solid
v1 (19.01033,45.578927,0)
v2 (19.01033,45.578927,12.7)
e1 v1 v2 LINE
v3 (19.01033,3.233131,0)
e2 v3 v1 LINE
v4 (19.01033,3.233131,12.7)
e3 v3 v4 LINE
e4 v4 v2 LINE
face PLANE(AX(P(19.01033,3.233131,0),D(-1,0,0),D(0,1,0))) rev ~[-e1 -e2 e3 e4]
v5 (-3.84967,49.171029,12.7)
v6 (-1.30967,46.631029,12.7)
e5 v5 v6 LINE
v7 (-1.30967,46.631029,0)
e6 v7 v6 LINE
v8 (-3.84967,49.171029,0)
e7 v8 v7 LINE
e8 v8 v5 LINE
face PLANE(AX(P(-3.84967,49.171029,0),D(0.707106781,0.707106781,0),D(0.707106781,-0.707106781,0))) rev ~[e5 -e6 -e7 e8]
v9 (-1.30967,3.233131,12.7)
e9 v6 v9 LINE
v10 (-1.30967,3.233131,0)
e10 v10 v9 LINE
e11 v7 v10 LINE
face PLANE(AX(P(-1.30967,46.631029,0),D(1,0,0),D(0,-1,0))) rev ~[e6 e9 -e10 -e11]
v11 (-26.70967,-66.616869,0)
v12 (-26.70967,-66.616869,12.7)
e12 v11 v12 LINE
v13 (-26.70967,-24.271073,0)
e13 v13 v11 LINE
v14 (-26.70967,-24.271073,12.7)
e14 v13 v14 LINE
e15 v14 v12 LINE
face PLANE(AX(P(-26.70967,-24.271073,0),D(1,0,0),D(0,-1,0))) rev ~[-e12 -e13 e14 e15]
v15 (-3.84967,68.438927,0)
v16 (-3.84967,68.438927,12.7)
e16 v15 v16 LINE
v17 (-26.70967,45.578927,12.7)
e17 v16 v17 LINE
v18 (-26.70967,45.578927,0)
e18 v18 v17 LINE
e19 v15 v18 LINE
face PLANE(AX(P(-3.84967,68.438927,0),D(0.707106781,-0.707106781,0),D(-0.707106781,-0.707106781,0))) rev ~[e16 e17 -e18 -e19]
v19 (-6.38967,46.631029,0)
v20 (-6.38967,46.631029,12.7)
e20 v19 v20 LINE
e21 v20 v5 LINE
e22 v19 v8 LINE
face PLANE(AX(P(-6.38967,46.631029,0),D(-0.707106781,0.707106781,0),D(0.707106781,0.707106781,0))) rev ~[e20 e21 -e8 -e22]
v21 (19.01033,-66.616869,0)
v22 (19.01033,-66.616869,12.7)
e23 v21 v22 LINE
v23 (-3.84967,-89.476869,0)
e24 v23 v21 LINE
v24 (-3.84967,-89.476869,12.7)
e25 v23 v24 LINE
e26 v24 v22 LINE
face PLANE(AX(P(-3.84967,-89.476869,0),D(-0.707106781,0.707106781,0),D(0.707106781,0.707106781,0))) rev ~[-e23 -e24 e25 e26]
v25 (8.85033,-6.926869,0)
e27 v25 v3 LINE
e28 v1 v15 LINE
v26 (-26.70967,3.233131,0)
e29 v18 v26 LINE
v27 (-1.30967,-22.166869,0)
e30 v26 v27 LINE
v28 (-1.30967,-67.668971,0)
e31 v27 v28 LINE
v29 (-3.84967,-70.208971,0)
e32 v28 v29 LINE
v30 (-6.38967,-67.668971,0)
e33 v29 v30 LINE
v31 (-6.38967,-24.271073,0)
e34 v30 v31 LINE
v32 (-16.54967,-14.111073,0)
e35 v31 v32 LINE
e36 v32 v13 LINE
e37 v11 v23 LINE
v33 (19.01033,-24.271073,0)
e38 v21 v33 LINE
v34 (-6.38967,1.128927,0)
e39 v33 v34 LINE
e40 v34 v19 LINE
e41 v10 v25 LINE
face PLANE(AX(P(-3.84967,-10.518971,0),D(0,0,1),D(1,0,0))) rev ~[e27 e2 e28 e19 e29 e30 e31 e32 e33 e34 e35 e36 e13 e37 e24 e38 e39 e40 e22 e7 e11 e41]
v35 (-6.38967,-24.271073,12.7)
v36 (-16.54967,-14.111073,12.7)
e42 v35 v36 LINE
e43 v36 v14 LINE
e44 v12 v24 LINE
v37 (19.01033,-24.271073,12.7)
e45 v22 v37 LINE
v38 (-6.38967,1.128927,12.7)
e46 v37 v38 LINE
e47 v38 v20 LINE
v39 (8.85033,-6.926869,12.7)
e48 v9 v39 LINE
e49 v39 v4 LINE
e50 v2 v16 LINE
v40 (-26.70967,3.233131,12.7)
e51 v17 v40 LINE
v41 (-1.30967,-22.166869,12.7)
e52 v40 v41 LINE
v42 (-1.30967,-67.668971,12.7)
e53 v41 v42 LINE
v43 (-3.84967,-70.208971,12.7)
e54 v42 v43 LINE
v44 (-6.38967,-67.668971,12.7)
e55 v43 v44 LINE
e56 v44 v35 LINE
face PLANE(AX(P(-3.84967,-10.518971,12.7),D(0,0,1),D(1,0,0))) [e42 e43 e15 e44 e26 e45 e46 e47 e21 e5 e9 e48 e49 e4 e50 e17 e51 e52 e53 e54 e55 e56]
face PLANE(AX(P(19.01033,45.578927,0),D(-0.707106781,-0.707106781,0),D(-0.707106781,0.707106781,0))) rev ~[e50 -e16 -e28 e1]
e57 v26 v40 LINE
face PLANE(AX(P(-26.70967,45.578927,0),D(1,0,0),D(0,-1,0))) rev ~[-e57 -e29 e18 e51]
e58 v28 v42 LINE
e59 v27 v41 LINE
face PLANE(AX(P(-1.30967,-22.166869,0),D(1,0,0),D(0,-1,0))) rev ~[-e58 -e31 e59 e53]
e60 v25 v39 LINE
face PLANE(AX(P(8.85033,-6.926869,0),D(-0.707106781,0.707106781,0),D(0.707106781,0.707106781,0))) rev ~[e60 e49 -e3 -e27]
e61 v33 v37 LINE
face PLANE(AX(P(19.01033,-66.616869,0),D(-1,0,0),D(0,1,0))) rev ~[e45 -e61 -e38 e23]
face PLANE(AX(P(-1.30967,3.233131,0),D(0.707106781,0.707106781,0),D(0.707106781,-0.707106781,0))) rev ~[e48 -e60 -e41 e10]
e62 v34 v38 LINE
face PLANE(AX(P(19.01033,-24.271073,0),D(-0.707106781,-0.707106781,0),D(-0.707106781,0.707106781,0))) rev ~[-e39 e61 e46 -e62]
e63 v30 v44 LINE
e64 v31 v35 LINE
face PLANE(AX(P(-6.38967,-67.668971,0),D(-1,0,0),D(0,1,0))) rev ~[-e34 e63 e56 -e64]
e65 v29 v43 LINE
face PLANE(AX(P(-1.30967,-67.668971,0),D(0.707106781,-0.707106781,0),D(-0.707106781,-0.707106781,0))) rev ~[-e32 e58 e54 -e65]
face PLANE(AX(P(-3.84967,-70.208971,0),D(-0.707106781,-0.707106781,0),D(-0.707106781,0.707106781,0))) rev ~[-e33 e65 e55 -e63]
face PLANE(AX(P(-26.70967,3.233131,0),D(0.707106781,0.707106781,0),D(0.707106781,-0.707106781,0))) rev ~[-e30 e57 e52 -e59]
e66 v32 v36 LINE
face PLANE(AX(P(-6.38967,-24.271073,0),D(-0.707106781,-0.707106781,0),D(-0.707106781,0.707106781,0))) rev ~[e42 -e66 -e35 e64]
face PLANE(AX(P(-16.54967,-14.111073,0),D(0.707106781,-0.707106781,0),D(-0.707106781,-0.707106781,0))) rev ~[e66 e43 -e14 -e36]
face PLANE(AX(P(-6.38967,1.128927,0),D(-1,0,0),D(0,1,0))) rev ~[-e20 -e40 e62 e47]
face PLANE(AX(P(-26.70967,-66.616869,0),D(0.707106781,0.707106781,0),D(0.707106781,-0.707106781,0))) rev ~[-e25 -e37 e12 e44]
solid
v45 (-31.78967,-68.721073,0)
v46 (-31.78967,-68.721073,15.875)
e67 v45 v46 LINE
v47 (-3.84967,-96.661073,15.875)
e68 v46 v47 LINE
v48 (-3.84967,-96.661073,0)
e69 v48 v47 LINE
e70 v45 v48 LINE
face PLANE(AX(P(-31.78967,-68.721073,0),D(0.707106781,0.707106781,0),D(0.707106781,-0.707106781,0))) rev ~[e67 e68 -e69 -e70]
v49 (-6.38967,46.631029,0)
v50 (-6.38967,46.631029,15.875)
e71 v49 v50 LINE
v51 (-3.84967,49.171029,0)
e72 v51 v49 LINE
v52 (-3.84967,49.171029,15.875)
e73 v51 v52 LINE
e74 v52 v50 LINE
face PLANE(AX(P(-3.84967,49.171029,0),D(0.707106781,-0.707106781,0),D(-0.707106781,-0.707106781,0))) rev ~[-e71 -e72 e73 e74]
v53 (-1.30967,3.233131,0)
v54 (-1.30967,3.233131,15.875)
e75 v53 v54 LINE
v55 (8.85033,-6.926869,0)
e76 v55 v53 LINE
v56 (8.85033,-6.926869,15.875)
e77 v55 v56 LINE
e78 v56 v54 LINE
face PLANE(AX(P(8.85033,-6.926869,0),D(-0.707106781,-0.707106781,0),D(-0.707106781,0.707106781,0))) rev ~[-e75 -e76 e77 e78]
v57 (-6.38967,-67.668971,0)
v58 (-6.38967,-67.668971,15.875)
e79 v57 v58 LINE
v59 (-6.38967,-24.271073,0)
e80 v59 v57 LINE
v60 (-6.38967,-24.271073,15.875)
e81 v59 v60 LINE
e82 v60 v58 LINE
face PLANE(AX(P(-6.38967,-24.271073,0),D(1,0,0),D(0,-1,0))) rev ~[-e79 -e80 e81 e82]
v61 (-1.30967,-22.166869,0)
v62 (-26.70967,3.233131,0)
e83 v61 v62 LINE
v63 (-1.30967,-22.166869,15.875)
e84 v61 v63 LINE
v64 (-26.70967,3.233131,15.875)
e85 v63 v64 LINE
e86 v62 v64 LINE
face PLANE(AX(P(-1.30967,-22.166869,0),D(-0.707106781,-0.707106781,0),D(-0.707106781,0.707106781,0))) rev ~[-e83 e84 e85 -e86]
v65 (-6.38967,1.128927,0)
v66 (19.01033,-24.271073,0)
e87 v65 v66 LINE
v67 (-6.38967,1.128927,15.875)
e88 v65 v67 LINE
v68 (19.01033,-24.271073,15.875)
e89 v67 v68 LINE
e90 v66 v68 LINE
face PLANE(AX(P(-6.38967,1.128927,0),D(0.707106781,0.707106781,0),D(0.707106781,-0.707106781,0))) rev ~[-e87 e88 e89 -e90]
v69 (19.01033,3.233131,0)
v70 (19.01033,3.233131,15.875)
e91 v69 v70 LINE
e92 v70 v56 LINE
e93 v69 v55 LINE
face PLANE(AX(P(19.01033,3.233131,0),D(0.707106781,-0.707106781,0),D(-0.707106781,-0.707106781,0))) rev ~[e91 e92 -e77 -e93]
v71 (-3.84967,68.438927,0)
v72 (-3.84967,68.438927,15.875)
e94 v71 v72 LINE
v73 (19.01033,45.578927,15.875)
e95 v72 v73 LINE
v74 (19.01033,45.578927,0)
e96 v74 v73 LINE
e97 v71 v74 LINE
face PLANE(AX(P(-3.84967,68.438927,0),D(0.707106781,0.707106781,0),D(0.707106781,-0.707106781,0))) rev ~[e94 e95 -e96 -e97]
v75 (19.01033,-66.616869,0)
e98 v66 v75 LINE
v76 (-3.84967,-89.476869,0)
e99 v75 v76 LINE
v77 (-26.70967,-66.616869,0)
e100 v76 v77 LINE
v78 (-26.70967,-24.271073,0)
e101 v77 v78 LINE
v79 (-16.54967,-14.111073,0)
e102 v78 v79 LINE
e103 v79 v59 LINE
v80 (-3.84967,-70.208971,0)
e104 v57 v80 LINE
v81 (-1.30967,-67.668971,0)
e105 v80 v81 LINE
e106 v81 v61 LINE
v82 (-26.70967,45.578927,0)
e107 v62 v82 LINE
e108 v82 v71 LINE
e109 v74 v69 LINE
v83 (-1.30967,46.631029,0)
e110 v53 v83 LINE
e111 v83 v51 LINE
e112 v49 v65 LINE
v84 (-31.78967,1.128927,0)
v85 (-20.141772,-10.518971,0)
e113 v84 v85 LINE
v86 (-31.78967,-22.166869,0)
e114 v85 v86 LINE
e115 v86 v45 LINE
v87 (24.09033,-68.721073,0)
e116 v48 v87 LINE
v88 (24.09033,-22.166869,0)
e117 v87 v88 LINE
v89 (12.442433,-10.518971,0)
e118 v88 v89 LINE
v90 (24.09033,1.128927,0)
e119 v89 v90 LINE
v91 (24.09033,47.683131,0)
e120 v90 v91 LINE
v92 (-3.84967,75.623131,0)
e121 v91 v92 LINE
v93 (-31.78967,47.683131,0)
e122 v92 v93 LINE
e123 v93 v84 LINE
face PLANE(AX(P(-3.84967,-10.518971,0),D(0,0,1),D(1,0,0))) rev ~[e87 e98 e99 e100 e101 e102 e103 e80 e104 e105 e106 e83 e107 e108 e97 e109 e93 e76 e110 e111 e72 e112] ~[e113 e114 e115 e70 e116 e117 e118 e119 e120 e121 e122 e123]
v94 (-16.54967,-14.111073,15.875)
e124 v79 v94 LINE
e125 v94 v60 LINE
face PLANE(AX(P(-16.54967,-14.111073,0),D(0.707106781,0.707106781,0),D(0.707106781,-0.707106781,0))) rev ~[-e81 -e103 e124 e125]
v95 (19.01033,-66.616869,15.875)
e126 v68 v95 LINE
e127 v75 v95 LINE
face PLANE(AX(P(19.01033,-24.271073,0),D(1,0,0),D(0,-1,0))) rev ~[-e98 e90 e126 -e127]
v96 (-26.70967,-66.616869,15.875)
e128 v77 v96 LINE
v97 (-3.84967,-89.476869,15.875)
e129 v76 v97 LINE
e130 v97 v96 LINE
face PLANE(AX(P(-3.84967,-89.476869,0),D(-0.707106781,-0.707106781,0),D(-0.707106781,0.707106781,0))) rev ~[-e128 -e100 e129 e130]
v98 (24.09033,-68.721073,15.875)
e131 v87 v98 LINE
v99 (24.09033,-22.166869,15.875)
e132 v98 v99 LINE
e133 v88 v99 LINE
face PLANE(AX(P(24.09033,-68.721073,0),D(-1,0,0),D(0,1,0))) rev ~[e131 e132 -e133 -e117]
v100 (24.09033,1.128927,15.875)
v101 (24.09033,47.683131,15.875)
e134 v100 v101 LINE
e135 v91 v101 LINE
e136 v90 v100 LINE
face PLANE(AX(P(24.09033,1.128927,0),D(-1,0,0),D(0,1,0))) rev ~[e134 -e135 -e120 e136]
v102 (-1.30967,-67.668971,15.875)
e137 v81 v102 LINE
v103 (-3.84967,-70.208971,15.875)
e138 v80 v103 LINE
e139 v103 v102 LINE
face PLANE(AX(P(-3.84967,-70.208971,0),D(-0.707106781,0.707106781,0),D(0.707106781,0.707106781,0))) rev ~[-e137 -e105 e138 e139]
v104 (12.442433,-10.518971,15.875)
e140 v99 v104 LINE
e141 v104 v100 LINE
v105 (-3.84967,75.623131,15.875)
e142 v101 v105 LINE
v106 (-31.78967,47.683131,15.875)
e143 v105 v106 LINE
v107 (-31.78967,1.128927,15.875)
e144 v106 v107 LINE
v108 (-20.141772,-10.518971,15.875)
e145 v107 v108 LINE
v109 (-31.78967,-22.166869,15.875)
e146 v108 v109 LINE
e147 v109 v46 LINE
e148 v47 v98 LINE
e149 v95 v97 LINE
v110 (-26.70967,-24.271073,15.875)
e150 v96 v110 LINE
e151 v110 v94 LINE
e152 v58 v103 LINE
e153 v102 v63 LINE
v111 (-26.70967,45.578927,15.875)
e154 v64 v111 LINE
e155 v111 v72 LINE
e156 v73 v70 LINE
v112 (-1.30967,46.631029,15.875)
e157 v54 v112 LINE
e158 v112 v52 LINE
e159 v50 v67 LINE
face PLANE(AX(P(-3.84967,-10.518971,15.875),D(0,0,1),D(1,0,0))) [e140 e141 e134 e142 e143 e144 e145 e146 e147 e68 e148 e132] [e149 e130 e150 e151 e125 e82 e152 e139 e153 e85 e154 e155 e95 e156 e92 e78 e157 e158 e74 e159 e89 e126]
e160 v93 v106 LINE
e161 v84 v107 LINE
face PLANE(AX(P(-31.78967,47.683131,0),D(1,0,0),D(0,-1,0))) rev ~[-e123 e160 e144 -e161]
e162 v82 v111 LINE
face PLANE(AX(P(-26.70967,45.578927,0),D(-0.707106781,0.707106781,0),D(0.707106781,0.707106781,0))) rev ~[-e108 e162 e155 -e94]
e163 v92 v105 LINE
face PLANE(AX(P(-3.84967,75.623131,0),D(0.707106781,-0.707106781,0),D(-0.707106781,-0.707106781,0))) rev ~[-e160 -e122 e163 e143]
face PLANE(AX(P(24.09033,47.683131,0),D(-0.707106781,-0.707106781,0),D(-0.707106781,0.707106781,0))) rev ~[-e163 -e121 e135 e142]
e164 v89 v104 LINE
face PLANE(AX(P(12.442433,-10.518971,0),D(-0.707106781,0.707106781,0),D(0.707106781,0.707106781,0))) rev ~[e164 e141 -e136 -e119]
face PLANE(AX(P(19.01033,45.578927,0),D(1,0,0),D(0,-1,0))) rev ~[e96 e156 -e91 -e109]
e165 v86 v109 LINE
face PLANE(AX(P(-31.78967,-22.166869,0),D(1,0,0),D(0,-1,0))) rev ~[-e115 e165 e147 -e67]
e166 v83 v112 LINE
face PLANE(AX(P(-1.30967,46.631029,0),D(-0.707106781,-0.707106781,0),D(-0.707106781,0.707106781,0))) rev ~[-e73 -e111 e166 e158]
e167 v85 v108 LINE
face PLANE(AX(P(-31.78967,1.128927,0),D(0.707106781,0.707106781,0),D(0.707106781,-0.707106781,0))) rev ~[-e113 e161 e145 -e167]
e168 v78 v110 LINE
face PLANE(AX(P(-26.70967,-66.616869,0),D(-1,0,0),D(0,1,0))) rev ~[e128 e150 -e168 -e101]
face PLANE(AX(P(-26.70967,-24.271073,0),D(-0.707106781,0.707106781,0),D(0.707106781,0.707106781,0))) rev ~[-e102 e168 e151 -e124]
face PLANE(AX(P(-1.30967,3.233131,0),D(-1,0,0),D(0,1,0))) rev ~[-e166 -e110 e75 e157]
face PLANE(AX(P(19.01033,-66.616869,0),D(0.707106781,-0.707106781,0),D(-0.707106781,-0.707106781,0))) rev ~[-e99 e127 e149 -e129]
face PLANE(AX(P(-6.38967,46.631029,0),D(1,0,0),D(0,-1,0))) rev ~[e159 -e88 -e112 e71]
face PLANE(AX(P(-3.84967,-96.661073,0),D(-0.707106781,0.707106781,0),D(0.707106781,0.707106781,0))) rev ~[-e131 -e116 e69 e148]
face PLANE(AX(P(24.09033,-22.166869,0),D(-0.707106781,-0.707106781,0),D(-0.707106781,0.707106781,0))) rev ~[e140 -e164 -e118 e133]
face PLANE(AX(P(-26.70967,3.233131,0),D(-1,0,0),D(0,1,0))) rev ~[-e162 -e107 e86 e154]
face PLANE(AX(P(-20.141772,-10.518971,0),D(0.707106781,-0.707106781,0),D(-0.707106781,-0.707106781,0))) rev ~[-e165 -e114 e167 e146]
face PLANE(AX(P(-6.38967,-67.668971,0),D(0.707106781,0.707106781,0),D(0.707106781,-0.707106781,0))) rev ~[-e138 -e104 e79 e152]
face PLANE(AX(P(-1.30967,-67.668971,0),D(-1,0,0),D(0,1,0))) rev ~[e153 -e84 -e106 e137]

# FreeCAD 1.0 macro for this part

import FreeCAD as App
import Part
import Sketcher
from FreeCAD import Vector
Q = App.Units.Quantity


def add_polygon(sketch, points):
    """Adds a closed chain of lines whose ends are joined by coincident constraints."""
    first, n = sketch.GeometryCount, len(points)
    for a, b in zip(points, points[1:] + points[:1]):
        sketch.addGeometry(Part.LineSegment(App.Vector(*a, 0), App.Vector(*b, 0)), False)
    for i in range(n):
        sketch.addConstraint(Sketcher.Constraint("Coincident", first + i, 2, first + (i + 1) % n, 1))

doc = App.newDocument("Part")
body = doc.addObject("PartDesign::Body", "Body")

sketch1 = doc.addObject("Sketcher::SketchObject", "Sketch")
body.addObject(sketch1)
sketch1.AttachmentSupport = (doc.XY_Plane, [""])
sketch1.MapMode = "FlatFace"
add_polygon(sketch1, [(-6.4, 1.1), (-6.4, 46.6), (-3.8, 49.2), (-1.3, 46.6), (-1.3, 3.2), (8.9, -6.9), (19, 3.2), (19, 45.6), (-3.8, 68.4), (-26.7, 45.6), (-26.7, 3.2), (-1.3, -22.2), (-1.3, -67.7), (-3.8, -70.2), (-6.4, -67.7), (-6.4, -24.3), (-16.5, -14.1), (-26.7, -24.3), (-26.7, -66.6), (-3.8, -89.5), (19, -66.6), (19, -24.3)])
sketch1.addConstraint(Sketcher.Constraint("Vertical", 0))
sketch1.addConstraint(Sketcher.Constraint("Vertical", 3))
sketch1.addConstraint(Sketcher.Constraint("Vertical", 6))
sketch1.addConstraint(Sketcher.Constraint("Vertical", 9))
sketch1.addConstraint(Sketcher.Constraint("Vertical", 11))
sketch1.addConstraint(Sketcher.Constraint("Vertical", 14))
sketch1.addConstraint(Sketcher.Constraint("Vertical", 17))
sketch1.addConstraint(Sketcher.Constraint("Vertical", 20))
sketch1.addConstraint(Sketcher.Constraint("Perpendicular", 1, 2))
sketch1.addConstraint(Sketcher.Constraint("Parallel", 2, 4))
sketch1.addConstraint(Sketcher.Constraint("Perpendicular", 4, 5))
sketch1.addConstraint(Sketcher.Constraint("Perpendicular", 5, 7))
sketch1.addConstraint(Sketcher.Constraint("Perpendicular", 7, 8))
sketch1.addConstraint(Sketcher.Constraint("Perpendicular", 8, 10))
sketch1.addConstraint(Sketcher.Constraint("Perpendicular", 10, 12))
sketch1.addConstraint(Sketcher.Constraint("Perpendicular", 12, 13))
sketch1.addConstraint(Sketcher.Constraint("Parallel", 13, 15))
sketch1.addConstraint(Sketcher.Constraint("Perpendicular", 15, 16))
sketch1.addConstraint(Sketcher.Constraint("Perpendicular", 16, 18))
sketch1.addConstraint(Sketcher.Constraint("Perpendicular", 18, 19))
sketch1.addConstraint(Sketcher.Constraint("Perpendicular", 19, 21))
sketch1.addConstraint(Sketcher.Constraint("Horizontal", 0, 2, 2, 2))
sketch1.addConstraint(Sketcher.Constraint("Horizontal", 3, 2, 5, 2))
sketch1.addConstraint(Sketcher.Constraint("Horizontal", 6, 2, 8, 2))
sketch1.addConstraint(Sketcher.Constraint("Horizontal", 5, 2, 9, 2))
sketch1.addConstraint(Sketcher.Constraint("Horizontal", 11, 2, 13, 2))
sketch1.addConstraint(Sketcher.Constraint("Horizontal", 14, 2, 16, 2))
sketch1.addConstraint(Sketcher.Constraint("Horizontal", 17, 2, 19, 2))
sketch1.addConstraint(Sketcher.Constraint("Horizontal", 16, 2, 20, 2))
sketch1.addConstraint(Sketcher.Constraint("Vertical", 1, 2, 7, 2))
sketch1.addConstraint(Sketcher.Constraint("Vertical", 3, 2, 10, 2))
sketch1.addConstraint(Sketcher.Constraint("Vertical", 7, 2, 12, 2))
sketch1.addConstraint(Sketcher.Constraint("Vertical", 0, 2, 13, 2))
sketch1.addConstraint(Sketcher.Constraint("Vertical", 9, 2, 16, 2))
sketch1.addConstraint(Sketcher.Constraint("Vertical", 12, 2, 18, 2))
sketch1.addConstraint(Sketcher.Constraint("Equal", 0, 11))
sketch1.addConstraint(Sketcher.Constraint("Equal", 9, 17))
sketch1.addConstraint(Sketcher.Constraint("DistanceX", 0, 2, 5, 2, Q("1 in")))
sketch1.addConstraint(Sketcher.Constraint("DistanceX", 0, 2, 1, 2, Q("0.1 in")))
sketch1.addConstraint(Sketcher.Constraint("DistanceY", 0, 1, 0, 2, 45.502102))
sketch1.addConstraint(Sketcher.Constraint("DistanceY", 3, 2, 3, 1, 43.397898))
sketch1.addConstraint(Sketcher.Constraint("DistanceY", 6, 1, 6, 2, 42.345795))
sketch1.addConstraint(Sketcher.Constraint("DistanceX", 0, 2, -1, 1, 6.38967))
sketch1.addConstraint(Sketcher.Constraint("DistanceY", -1, 1, 0, 2, 46.631029))
pad1 = doc.addObject("PartDesign::Pad", "Pad")
body.addObject(pad1)
pad1.Profile = sketch1
pad1.Length = Q("0.5 in")
body2 = doc.addObject("PartDesign::Body", "Body001")

sketch2 = doc.addObject("Sketcher::SketchObject", "Sketch001")
body2.addObject(sketch2)
sketch2.AttachmentSupport = (doc.getObject("XY_Plane001"), [""])
sketch2.MapMode = "FlatFace"
add_polygon(sketch2, [(24.1, -22.2), (12.4, -10.5), (24.1, 1.1), (24.1, 47.7), (-3.8, 75.6), (-31.8, 47.7), (-31.8, 1.1), (-20.1, -10.5), (-31.8, -22.2), (-31.8, -68.7), (-3.8, -96.7), (24.1, -68.7)])
add_polygon(sketch2, [(19, 3.2), (8.9, -6.9), (-1.3, 3.2), (-1.3, 46.6), (-3.8, 49.2), (-6.4, 46.6), (-6.4, 1.1), (19, -24.3), (19, -66.6), (-3.8, -89.5), (-26.7, -66.6), (-26.7, -24.3), (-16.5, -14.1), (-6.4, -24.3), (-6.4, -67.7), (-3.8, -70.2), (-1.3, -67.7), (-1.3, -22.2), (-26.7, 3.2), (-26.7, 45.6), (-3.8, 68.4), (19, 45.6)])
sketch2.addConstraint(Sketcher.Constraint("Vertical", 2))
sketch2.addConstraint(Sketcher.Constraint("Vertical", 5))
sketch2.addConstraint(Sketcher.Constraint("Vertical", 8))
sketch2.addConstraint(Sketcher.Constraint("Vertical", 11))
sketch2.addConstraint(Sketcher.Constraint("Vertical", 14))
sketch2.addConstraint(Sketcher.Constraint("Vertical", 17))
sketch2.addConstraint(Sketcher.Constraint("Vertical", 19))
sketch2.addConstraint(Sketcher.Constraint("Vertical", 22))
sketch2.addConstraint(Sketcher.Constraint("Vertical", 25))
sketch2.addConstraint(Sketcher.Constraint("Vertical", 28))
sketch2.addConstraint(Sketcher.Constraint("Vertical", 30))
sketch2.addConstraint(Sketcher.Constraint("Vertical", 33))
sketch2.addConstraint(Sketcher.Constraint("Perpendicular", 0, 1))
sketch2.addConstraint(Sketcher.Constraint("Perpendicular", 1, 3))
sketch2.addConstraint(Sketcher.Constraint("Perpendicular", 3, 4))
sketch2.addConstraint(Sketcher.Constraint("Perpendicular", 4, 6))
sketch2.addConstraint(Sketcher.Constraint("Perpendicular", 6, 7))
sketch2.addConstraint(Sketcher.Constraint("Perpendicular", 7, 9))
sketch2.addConstraint(Sketcher.Constraint("Perpendicular", 9, 10))
sketch2.addConstraint(Sketcher.Constraint("Parallel", 10, 12))
sketch2.addConstraint(Sketcher.Constraint("Perpendicular", 12, 13))
sketch2.addConstraint(Sketcher.Constraint("Parallel", 13, 15))
sketch2.addConstraint(Sketcher.Constraint("Perpendicular", 15, 16))
sketch2.addConstraint(Sketcher.Constraint("Perpendicular", 16, 18))
sketch2.addConstraint(Sketcher.Constraint("Perpendicular", 18, 20))
sketch2.addConstraint(Sketcher.Constraint("Perpendicular", 20, 21))
sketch2.addConstraint(Sketcher.Constraint("Perpendicular", 21, 23))
sketch2.addConstraint(Sketcher.Constraint("Perpendicular", 23, 24))
sketch2.addConstraint(Sketcher.Constraint("Parallel", 24, 26))
sketch2.addConstraint(Sketcher.Constraint("Perpendicular", 26, 27))
sketch2.addConstraint(Sketcher.Constraint("Perpendicular", 27, 29))
sketch2.addConstraint(Sketcher.Constraint("Perpendicular", 29, 31))
sketch2.addConstraint(Sketcher.Constraint("Perpendicular", 31, 32))
sketch2.addConstraint(Sketcher.Constraint("Horizontal", 2, 2, 4, 2))
sketch2.addConstraint(Sketcher.Constraint("Horizontal", 1, 2, 5, 2))
sketch2.addConstraint(Sketcher.Constraint("Horizontal", 0, 2, 6, 2))
sketch2.addConstraint(Sketcher.Constraint("Horizontal", 8, 2, 10, 2))
sketch2.addConstraint(Sketcher.Constraint("Horizontal", 7, 2, 11, 2))
sketch2.addConstraint(Sketcher.Constraint("Horizontal", 14, 2, 16, 2))
sketch2.addConstraint(Sketcher.Constraint("Horizontal", 5, 2, 17, 2))
sketch2.addConstraint(Sketcher.Constraint("Horizontal", 19, 2, 21, 2))
sketch2.addConstraint(Sketcher.Constraint("Horizontal", 18, 2, 22, 2))
sketch2.addConstraint(Sketcher.Constraint("Horizontal", 22, 2, 24, 2))
sketch2.addConstraint(Sketcher.Constraint("Horizontal", 25, 2, 27, 2))
sketch2.addConstraint(Sketcher.Constraint("Horizontal", 11, 2, 28, 2))
sketch2.addConstraint(Sketcher.Constraint("Horizontal", 13, 2, 29, 2))
sketch2.addConstraint(Sketcher.Constraint("Horizontal", 30, 2, 32, 2))
sketch2.addConstraint(Sketcher.Constraint("Horizontal", 29, 2, 33, 2))
sketch2.addConstraint(Sketcher.Constraint("Vertical", 5, 2, 7, 2))
sketch2.addConstraint(Sketcher.Constraint("Vertical", 3, 2, 9, 2))
sketch2.addConstraint(Sketcher.Constraint("Vertical", 9, 2, 15, 2))
sketch2.addConstraint(Sketcher.Constraint("Vertical", 15, 2, 20, 2))
sketch2.addConstraint(Sketcher.Constraint("Vertical", 17, 2, 24, 2))
sketch2.addConstraint(Sketcher.Constraint("Vertical", 20, 2, 26, 2))
sketch2.addConstraint(Sketcher.Constraint("Vertical", 22, 2, 29, 2))
sketch2.addConstraint(Sketcher.Constraint("Vertical", 26, 2, 31, 2))
sketch2.addConstraint(Sketcher.Constraint("Equal", 5, 8))
sketch2.addConstraint(Sketcher.Constraint("Equal", 14, 25))
sketch2.addConstraint(Sketcher.Constraint("Equal", 22, 30))
sketch2.addConstraint(Sketcher.Constraint("DistanceX", 13, 2, 1, 2, Q("1 in")))
sketch2.addConstraint(Sketcher.Constraint("DistanceY", 18, 2, 1, 2, Q("1 in")))
sketch2.addConstraint(Sketcher.Constraint("DistanceX", 3, 2, 2, 2, Q("1.1 in")))
sketch2.addConstraint(Sketcher.Constraint("DistanceY", 7, 2, 4, 2, Q("2.75 in")))
sketch2.addConstraint(Sketcher.Constraint("DistanceY", 19, 2, 11, 2, Q("1.75 in")))
sketch2.addConstraint(Sketcher.Constraint("DistanceY", 2, 1, 2, 2, 46.554205))
sketch2.addConstraint(Sketcher.Constraint("DistanceY", 14, 1, 14, 2, 43.397898))
sketch2.addConstraint(Sketcher.Constraint("DistanceY", 0, 2, -1, 1, 10.518971))
sketch2.addConstraint(Sketcher.Constraint("DistanceX", -1, 1, 1, 2, 24.09033))
pad2 = doc.addObject("PartDesign::Pad", "Pad001")
body2.addObject(pad2)
pad2.Profile = sketch2
pad2.Length = Q("0.625 in")

doc.recompute()
